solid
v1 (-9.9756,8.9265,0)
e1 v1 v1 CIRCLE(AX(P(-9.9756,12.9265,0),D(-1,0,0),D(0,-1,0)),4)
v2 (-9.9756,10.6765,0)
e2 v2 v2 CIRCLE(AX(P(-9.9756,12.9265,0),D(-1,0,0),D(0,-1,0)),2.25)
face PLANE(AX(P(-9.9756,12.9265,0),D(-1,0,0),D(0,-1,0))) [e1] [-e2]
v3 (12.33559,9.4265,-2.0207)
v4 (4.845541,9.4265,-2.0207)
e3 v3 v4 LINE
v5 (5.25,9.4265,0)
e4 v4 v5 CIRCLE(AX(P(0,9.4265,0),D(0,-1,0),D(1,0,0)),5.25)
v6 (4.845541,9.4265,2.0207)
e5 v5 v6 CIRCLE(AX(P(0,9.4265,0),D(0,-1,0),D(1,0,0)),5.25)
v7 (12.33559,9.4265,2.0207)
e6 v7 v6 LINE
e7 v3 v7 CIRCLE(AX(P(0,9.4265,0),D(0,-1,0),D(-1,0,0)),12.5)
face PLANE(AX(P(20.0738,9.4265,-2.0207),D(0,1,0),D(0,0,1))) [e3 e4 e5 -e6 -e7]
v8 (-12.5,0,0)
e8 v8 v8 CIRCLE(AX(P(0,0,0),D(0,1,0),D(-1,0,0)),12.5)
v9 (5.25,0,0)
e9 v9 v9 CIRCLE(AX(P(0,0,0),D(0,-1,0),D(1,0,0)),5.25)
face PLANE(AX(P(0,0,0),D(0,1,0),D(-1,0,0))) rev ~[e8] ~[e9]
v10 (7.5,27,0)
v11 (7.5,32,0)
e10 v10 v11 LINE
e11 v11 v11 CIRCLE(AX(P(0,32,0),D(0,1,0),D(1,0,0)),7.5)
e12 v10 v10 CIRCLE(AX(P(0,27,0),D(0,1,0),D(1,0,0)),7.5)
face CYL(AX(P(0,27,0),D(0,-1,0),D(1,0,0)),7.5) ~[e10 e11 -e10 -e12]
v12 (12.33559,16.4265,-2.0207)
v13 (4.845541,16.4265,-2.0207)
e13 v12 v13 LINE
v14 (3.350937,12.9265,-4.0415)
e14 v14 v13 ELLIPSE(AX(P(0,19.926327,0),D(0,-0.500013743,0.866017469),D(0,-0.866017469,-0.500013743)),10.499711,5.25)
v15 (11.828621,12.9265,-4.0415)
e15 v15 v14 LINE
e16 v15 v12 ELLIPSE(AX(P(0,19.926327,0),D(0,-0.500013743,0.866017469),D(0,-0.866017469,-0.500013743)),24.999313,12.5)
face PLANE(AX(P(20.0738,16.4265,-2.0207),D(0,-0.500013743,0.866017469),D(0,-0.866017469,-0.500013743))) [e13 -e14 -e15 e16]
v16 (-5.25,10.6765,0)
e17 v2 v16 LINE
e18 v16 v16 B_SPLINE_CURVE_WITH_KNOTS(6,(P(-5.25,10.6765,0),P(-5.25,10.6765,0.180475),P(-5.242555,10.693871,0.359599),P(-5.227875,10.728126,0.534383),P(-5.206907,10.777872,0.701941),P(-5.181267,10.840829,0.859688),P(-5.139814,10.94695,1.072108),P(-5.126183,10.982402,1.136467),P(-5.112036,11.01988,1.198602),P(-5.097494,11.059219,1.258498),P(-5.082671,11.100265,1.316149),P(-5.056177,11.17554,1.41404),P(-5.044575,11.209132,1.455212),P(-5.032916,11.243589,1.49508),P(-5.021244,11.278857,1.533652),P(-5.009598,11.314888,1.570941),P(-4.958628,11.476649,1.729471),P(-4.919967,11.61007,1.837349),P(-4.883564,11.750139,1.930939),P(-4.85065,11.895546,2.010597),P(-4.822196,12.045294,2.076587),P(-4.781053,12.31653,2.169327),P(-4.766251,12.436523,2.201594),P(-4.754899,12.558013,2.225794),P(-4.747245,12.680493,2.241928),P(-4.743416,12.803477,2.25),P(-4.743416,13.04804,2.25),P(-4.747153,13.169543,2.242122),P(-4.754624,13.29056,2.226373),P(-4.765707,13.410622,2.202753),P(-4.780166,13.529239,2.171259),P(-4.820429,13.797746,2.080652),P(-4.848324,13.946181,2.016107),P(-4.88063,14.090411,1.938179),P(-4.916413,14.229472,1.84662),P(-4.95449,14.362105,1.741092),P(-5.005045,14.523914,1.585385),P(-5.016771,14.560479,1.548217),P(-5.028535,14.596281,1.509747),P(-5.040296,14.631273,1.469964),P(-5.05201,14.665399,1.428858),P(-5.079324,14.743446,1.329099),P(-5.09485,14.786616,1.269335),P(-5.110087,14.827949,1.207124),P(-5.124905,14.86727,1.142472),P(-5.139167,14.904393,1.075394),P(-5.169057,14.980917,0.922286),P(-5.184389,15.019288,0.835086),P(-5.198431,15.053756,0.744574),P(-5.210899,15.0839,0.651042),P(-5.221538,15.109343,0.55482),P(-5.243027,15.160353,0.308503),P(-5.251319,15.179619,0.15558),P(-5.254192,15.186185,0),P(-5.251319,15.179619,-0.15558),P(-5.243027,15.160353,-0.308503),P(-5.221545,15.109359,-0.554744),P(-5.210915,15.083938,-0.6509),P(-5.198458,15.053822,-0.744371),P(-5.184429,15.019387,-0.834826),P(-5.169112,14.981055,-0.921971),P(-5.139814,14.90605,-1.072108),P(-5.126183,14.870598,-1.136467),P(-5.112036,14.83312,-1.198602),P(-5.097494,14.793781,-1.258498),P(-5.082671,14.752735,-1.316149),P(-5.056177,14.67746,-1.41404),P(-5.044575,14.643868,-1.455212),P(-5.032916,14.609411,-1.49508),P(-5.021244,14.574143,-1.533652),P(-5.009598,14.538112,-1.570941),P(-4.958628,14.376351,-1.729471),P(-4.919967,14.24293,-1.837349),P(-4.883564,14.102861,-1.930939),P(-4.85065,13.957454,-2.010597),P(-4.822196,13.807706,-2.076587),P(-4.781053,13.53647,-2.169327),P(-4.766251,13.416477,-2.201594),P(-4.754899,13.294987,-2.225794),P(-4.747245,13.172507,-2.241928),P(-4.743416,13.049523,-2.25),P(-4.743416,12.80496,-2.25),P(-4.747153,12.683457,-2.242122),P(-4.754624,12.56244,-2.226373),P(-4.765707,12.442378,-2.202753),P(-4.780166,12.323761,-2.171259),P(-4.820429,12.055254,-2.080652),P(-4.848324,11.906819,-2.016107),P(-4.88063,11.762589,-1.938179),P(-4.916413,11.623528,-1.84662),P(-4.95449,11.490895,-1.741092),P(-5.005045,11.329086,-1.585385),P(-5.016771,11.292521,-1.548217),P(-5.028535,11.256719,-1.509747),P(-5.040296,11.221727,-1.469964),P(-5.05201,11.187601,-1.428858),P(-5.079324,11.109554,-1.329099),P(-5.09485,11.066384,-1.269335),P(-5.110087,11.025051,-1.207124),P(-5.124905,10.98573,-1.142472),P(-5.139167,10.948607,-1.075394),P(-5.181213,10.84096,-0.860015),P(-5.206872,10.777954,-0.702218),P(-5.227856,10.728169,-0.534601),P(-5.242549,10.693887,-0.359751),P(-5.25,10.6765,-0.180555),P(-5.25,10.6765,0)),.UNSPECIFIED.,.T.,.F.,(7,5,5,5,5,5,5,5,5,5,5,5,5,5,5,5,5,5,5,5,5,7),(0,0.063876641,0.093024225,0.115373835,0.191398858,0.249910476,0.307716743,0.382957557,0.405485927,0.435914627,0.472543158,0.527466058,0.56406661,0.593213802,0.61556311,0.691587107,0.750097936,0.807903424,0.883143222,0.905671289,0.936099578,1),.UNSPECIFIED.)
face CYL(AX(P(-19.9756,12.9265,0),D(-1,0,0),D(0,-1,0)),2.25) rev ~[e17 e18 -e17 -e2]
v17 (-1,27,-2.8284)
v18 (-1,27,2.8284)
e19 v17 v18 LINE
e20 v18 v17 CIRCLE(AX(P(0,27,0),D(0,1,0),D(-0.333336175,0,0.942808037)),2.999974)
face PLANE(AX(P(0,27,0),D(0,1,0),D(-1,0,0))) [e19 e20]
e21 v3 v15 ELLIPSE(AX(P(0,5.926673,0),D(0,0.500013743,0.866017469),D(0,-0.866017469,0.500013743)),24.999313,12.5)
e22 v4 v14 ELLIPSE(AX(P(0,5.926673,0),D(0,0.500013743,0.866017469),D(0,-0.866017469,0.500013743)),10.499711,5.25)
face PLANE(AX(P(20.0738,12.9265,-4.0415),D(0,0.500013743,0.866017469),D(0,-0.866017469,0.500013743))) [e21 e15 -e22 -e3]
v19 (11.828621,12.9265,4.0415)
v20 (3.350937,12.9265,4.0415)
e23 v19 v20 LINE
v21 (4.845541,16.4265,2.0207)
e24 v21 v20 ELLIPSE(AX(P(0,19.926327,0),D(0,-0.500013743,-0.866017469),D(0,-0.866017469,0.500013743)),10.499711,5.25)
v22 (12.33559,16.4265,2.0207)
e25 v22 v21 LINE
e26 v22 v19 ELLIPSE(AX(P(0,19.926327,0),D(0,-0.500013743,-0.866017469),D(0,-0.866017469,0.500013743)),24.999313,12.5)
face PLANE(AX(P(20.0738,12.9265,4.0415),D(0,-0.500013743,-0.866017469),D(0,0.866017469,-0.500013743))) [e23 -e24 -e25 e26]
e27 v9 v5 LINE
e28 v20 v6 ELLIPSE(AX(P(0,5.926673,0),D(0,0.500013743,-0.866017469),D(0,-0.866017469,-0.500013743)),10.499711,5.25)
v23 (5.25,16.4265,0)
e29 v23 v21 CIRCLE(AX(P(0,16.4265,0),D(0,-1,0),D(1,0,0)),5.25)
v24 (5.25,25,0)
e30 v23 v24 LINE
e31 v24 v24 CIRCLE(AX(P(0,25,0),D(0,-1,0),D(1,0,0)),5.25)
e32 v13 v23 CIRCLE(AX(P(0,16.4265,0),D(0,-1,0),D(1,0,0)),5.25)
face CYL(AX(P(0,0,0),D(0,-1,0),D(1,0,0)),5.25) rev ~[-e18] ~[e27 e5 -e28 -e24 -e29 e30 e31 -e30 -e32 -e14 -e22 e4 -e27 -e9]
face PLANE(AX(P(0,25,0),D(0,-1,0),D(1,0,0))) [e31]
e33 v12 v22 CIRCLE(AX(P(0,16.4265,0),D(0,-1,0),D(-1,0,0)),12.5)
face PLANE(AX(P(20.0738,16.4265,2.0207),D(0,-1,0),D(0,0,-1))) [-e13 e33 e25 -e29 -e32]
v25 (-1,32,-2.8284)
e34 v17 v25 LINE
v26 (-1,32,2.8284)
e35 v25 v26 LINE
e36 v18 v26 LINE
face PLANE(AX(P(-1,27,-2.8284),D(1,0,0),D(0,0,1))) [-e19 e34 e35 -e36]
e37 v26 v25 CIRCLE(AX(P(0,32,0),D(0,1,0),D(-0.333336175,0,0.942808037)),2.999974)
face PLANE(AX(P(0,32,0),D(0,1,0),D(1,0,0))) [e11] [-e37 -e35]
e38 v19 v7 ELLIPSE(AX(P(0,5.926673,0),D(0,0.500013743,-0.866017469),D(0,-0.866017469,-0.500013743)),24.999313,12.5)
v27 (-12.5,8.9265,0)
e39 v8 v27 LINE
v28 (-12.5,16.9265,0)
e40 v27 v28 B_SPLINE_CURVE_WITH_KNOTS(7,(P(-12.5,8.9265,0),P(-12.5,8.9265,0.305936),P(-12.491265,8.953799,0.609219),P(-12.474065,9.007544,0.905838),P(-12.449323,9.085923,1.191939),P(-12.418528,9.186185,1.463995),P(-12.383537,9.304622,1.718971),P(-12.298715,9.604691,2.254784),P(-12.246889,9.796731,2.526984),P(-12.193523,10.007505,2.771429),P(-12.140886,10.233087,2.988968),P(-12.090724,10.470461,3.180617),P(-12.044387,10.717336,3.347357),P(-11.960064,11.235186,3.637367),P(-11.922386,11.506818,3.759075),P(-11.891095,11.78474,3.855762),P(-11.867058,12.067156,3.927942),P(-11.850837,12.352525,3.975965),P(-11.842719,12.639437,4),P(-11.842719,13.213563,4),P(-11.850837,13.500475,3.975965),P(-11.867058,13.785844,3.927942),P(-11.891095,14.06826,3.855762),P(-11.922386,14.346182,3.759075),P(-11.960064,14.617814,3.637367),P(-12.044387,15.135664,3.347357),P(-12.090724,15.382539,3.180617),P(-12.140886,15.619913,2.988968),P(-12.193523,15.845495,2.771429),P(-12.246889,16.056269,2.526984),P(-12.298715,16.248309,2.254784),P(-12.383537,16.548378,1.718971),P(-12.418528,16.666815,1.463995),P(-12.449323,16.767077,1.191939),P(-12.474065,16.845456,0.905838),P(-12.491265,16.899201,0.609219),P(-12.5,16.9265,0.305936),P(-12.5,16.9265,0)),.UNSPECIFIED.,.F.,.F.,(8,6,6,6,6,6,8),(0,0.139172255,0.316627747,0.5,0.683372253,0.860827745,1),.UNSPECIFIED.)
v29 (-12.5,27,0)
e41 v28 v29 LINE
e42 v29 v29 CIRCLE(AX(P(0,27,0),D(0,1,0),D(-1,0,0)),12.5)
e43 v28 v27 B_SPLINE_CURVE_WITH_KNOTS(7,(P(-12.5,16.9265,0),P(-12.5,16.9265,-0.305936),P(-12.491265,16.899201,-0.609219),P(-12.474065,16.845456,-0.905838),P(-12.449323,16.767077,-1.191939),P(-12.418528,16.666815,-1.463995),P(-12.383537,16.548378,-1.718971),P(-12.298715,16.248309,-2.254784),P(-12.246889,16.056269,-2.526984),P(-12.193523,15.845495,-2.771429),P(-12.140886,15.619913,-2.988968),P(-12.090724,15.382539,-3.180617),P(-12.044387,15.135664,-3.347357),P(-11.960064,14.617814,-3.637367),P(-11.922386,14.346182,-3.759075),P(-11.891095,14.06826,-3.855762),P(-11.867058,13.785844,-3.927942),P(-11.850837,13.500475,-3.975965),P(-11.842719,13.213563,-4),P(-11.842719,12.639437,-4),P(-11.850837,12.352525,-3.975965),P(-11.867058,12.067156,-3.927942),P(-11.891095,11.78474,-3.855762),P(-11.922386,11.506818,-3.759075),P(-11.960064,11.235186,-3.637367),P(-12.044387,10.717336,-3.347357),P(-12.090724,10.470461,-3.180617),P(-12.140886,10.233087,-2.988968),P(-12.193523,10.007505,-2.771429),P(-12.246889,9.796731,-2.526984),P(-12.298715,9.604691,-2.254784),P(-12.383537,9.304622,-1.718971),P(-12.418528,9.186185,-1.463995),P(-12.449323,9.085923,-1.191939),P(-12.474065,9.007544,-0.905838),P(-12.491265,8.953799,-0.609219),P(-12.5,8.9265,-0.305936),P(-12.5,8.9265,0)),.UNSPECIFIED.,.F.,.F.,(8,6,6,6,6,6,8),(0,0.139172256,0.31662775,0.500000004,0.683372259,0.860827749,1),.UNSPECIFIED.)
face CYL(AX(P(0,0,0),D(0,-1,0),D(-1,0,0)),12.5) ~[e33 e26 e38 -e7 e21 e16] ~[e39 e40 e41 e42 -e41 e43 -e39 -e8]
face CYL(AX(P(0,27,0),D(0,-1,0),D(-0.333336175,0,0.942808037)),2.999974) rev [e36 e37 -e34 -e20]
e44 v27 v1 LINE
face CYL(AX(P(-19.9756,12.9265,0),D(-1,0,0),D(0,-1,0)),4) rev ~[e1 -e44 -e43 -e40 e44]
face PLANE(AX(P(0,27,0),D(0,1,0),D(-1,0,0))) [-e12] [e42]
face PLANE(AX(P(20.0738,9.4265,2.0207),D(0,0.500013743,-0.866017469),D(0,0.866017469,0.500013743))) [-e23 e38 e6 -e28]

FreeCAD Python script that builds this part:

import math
import FreeCAD as App
import Part
import Sketcher

V = App.Vector
Q = App.Units.Quantity

doc = App.newDocument("Part")
body = doc.addObject("PartDesign::Body", "Body")

# Sketch on XZ plane
sketch1 = body.newObject("Sketcher::SketchObject", "Sketch")
sketch1.AttachmentSupport = (doc.getObject("XZ_Plane"), [""])
sketch1.MapMode = "FlatFace"
sketch1.addGeometry(Part.Circle(V(0, 0, 0), V(0, 0, 1), 12.5), False)
sketch1.addConstraint(Sketcher.Constraint("Coincident", 0, 3, -1, 1))
sketch1.addConstraint(Sketcher.Constraint("Diameter", 0, 25.0))
pad1 = body.newObject("PartDesign::Pad", "Pad")
pad1.Profile = sketch1
pad1.Length = 27
pad1.Reversed = True

# Sketch on XZ plane
sketch2 = body.newObject("Sketcher::SketchObject", "Sketch001")
sketch2.AttachmentSupport = (doc.getObject("XZ_Plane"), [""])
sketch2.MapMode = "FlatFace"
sketch2.AttachmentOffset = App.Placement(V(0, 0, -27), App.Rotation())
sketch2.addGeometry(Part.Circle(V(0, 0, 0), V(0, 0, 1), 7.5), False)
sketch2.addGeometry(Part.ArcOfCircle(Part.Circle(V(0, 0, 0), V(0, 0, 1), 2.999974), math.radians(-109.471393), math.radians(109.471393)), False)
sketch2.addGeometry(Part.LineSegment(V(-1, 2.8284, 0), V(-1, -2.8284, 0)), False)
sketch2.addConstraint(Sketcher.Constraint("Coincident", 1, 1, 2, 2))
sketch2.addConstraint(Sketcher.Constraint("Coincident", 2, 1, 1, 2))
sketch2.addConstraint(Sketcher.Constraint("Vertical", 2))
sketch2.addConstraint(Sketcher.Constraint("Coincident", 0, 3, -1, 1))
sketch2.addConstraint(Sketcher.Constraint("Coincident", 1, 3, -1, 1))
sketch2.addConstraint(Sketcher.Constraint("Diameter", 0, 15.0))
sketch2.addConstraint(Sketcher.Constraint("Radius", 1, 3.0))
sketch2.addConstraint(Sketcher.Constraint("DistanceX", 1, 1, -1, 1, 1.0))
pad2 = body.newObject("PartDesign::Pad", "Pad001")
pad2.Profile = sketch2
pad2.Length = 5
pad2.Reversed = True

# Sketch on XZ plane
sketch3 = body.newObject("Sketcher::SketchObject", "Sketch002")
sketch3.AttachmentSupport = (doc.getObject("XZ_Plane"), [""])
sketch3.MapMode = "FlatFace"
sketch3.addGeometry(Part.Circle(V(0, 0, 0), V(0, 0, 1), 5.25), False)
sketch3.addConstraint(Sketcher.Constraint("Coincident", 0, 3, -1, 1))
sketch3.addConstraint(Sketcher.Constraint("Diameter", 0, 10.5))
pocket1 = body.newObject("PartDesign::Pocket", "Pocket")
pocket1.Profile = sketch3
pocket1.Length = 25

# Sketch on YZ plane
sketch4 = body.newObject("Sketcher::SketchObject", "Sketch003")
sketch4.AttachmentSupport = (doc.getObject("YZ_Plane"), [""])
sketch4.MapMode = "FlatFace"
sketch4.AttachmentOffset = App.Placement(V(0, 0, -19.9756), App.Rotation())
sketch4.addGeometry(Part.Circle(V(12.9265, 0, 0), V(0, 0, 1), 4), False)
sketch4.addConstraint(Sketcher.Constraint("PointOnObject", 0, 3, -1))
sketch4.addConstraint(Sketcher.Constraint("Diameter", 0, 8.0))
sketch4.addConstraint(Sketcher.Constraint("DistanceX", -1, 1, 0, 3, 12.9265))
pocket2 = body.newObject("PartDesign::Pocket", "Pocket001")
pocket2.Profile = sketch4
pocket2.Length = 10
pocket2.Reversed = True

# Sketch on YZ plane
sketch5 = body.newObject("Sketcher::SketchObject", "Sketch004")
sketch5.AttachmentSupport = (doc.getObject("YZ_Plane"), [""])
sketch5.MapMode = "FlatFace"
sketch5.AttachmentOffset = App.Placement(V(0, 0, 20.0738), App.Rotation())
sketch5.addGeometry(Part.LineSegment(V(9.4265, 2.0207, 0), V(9.4265, -2.0207, 0)), False)
sketch5.addGeometry(Part.LineSegment(V(9.4265, -2.0207, 0), V(12.9265, -4.0415, 0)), False)
sketch5.addGeometry(Part.LineSegment(V(12.9265, -4.0415, 0), V(16.4265, -2.0207, 0)), False)
sketch5.addGeometry(Part.LineSegment(V(16.4265, -2.0207, 0), V(16.4265, 2.0207, 0)), False)
sketch5.addGeometry(Part.LineSegment(V(16.4265, 2.0207, 0), V(12.9265, 4.0415, 0)), False)
sketch5.addGeometry(Part.LineSegment(V(12.9265, 4.0415, 0), V(9.4265, 2.0207, 0)), False)
sketch5.addConstraint(Sketcher.Constraint("Coincident", 0, 2, 1, 1))
sketch5.addConstraint(Sketcher.Constraint("Coincident", 1, 2, 2, 1))
sketch5.addConstraint(Sketcher.Constraint("Coincident", 2, 2, 3, 1))
sketch5.addConstraint(Sketcher.Constraint("Coincident", 3, 2, 4, 1))
sketch5.addConstraint(Sketcher.Constraint("Coincident", 4, 2, 5, 1))
sketch5.addConstraint(Sketcher.Constraint("Coincident", 5, 2, 0, 1))
sketch5.addConstraint(Sketcher.Constraint("Vertical", 0))
sketch5.addConstraint(Sketcher.Constraint("Vertical", 3))
sketch5.addConstraint(Sketcher.Constraint("Symmetric", 1, 2, 4, 2, -1))
sketch5.addConstraint(Sketcher.Constraint("Parallel", 1, 4))
sketch5.addConstraint(Sketcher.Constraint("Parallel", 2, 5))
sketch5.addConstraint(Sketcher.Constraint("Horizontal", 0, 2, 2, 2))
sketch5.addConstraint(Sketcher.Constraint("Horizontal", 3, 2, 5, 2))
sketch5.addConstraint(Sketcher.Constraint("Angle", 1, Q("-30.001 deg")))
sketch5.addConstraint(Sketcher.Constraint("DistanceX", 0, 2, 2, 2, 7.0))
sketch5.addConstraint(Sketcher.Constraint("DistanceY", 0, 2, 0, 1, 4.0414))
sketch5.addConstraint(Sketcher.Constraint("DistanceX", -1, 1, 0, 2, 9.4265))
pocket3 = body.newObject("PartDesign::Pocket", "Pocket002")
pocket3.Profile = sketch5
pocket3.Length = 17.9375

# Sketch on YZ plane
sketch6 = body.newObject("Sketcher::SketchObject", "Sketch005")
sketch6.AttachmentSupport = (doc.getObject("YZ_Plane"), [""])
sketch6.MapMode = "FlatFace"
sketch6.AttachmentOffset = App.Placement(V(0, 0, -19.9756), App.Rotation())
sketch6.addGeometry(Part.Circle(V(12.9265, 0, 0), V(0, 0, 1), 2.25), False)
sketch6.addConstraint(Sketcher.Constraint("PointOnObject", 0, 3, -1))
sketch6.addConstraint(Sketcher.Constraint("Diameter", 0, 4.5))
sketch6.addConstraint(Sketcher.Constraint("DistanceX", -1, 1, 0, 3, 12.9265))
pocket4 = body.newObject("PartDesign::Pocket", "Pocket003")
pocket4.Profile = sketch6
pocket4.Length = 17.9375
pocket4.Reversed = True

doc.recompute()
